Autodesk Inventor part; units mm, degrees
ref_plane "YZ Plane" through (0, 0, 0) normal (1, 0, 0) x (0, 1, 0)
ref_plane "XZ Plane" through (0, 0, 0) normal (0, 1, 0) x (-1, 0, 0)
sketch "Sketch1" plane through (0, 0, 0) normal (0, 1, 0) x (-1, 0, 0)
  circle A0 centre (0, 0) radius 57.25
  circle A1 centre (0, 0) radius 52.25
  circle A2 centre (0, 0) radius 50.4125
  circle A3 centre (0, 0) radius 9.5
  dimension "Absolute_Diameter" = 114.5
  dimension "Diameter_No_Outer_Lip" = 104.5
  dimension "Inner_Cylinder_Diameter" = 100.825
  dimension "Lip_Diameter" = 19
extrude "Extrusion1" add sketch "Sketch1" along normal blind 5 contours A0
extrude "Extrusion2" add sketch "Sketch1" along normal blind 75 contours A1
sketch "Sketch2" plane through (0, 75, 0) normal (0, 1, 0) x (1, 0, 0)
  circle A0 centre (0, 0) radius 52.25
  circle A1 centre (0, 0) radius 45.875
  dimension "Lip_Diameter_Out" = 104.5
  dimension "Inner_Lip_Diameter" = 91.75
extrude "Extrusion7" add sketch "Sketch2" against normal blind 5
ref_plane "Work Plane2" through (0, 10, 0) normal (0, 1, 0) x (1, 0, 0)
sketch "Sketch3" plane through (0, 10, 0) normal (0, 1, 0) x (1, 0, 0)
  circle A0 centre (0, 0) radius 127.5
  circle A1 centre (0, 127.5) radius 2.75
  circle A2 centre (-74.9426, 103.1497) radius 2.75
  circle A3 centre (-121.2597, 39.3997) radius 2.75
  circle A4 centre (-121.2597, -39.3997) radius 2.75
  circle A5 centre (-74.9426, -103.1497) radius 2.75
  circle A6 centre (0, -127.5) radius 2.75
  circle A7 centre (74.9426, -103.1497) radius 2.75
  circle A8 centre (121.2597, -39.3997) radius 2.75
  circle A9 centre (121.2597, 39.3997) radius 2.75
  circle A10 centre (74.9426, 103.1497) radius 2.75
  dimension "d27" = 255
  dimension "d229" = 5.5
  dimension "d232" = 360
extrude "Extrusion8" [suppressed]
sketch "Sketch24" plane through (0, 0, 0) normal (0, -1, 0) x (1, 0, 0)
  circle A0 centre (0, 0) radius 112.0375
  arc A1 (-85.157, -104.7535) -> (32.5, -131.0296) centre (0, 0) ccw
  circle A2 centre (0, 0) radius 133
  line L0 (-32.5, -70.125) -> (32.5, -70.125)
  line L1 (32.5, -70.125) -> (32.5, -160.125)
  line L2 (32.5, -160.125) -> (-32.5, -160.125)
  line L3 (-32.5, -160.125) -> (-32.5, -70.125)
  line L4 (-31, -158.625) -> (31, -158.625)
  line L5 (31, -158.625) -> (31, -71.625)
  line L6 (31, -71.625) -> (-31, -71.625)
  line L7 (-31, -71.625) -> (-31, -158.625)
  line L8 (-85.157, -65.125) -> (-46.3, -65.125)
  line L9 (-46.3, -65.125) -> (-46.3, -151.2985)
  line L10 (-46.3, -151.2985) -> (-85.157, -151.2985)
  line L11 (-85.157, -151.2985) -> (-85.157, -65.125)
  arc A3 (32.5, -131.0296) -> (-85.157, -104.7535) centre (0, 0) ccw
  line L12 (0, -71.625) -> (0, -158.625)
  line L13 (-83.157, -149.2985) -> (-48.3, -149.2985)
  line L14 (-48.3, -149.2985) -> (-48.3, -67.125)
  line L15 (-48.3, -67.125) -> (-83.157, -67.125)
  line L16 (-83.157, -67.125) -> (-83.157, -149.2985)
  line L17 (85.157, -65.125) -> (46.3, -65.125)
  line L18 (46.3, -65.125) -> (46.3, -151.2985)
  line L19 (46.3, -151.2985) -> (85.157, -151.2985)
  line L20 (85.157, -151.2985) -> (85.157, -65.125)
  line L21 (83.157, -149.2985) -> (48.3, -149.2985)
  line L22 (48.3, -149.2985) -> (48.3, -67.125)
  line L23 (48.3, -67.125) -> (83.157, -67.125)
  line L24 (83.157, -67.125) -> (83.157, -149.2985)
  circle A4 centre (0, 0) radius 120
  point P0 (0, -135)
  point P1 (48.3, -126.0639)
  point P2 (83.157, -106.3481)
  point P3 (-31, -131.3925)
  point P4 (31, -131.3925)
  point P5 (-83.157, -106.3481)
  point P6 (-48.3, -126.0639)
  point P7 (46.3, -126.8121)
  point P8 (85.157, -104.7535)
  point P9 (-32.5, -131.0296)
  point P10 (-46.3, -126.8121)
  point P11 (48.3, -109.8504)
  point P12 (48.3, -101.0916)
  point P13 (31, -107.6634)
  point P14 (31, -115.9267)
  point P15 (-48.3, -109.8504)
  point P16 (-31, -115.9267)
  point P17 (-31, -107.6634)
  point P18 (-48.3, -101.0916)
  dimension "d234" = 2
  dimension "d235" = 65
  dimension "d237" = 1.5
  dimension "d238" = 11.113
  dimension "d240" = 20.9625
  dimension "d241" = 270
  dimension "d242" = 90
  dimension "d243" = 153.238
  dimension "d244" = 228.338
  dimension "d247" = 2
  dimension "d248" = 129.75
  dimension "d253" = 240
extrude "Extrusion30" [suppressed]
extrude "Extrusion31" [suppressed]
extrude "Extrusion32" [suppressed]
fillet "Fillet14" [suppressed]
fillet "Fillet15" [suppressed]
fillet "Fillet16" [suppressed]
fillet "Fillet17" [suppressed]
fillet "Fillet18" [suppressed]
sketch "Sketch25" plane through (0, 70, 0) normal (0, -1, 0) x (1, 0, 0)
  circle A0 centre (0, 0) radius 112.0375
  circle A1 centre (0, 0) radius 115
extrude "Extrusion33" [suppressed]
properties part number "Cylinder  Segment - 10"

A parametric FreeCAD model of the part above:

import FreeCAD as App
import Part
import Sketcher
from FreeCAD import Vector

doc = App.newDocument("Part")
params = doc.addObject("Spreadsheet::Sheet", "Params")
for row, (alias, value) in enumerate([
    ("sketch1_diameter", "114.5 mm"),
    ("sketch1_diameter2", "104.5 mm"),
    ("pad1_length", "5 mm"),
    ("sketch2_diameter", "104.5 mm"),
    ("pad2_length", "75 mm"),
    ("sketch3_diameter", "104.5 mm"),
    ("sketch3_diameter2", "91.75 mm"),
    ("pad3_length", "5 mm"),
], start=1):
    params.set(f"A{row}", alias)
    params.set(f"B{row}", "=" + value)
    params.setAlias(f"B{row}", alias)

body = doc.addObject("PartDesign::Body", "Body")

# Sketch on XZ plane
sketch1 = body.newObject("Sketcher::SketchObject", "Sketch")
sketch1.AttachmentSupport = (doc.getObject("XZ_Plane"), [""])
sketch1.MapMode = "FlatFace"
sketch1.addGeometry([
    Part.Circle(Vector(0, 0, 0), Vector(0, 0, 1), 57),
    Part.Circle(Vector(0, 0, 0), Vector(0, 0, 1), 52),
], False)
sketch1.addConstraint([
    Sketcher.Constraint("Coincident", 0, 3, -1, 1),
    Sketcher.Constraint("Coincident", 1, 3, -1, 1),
    Sketcher.Constraint("Diameter", 0, 114.5),
    Sketcher.Constraint("Diameter", 1, 104.5),
])
sketch1.setExpression("Constraints[2]", "Params.sketch1_diameter")
sketch1.setExpression("Constraints[3]", "Params.sketch1_diameter2")
pad1 = body.newObject("PartDesign::Pad", "Pad")
pad1.Profile = sketch1
pad1.setExpression("Length", "Params.pad1_length")
pad1.Reversed = True

# Sketch on XZ plane
sketch2 = body.newObject("Sketcher::SketchObject", "Sketch001")
sketch2.AttachmentSupport = (doc.getObject("XZ_Plane"), [""])
sketch2.MapMode = "FlatFace"
sketch2.addGeometry([
    Part.Circle(Vector(0, 0, 0), Vector(0, 0, 1), 52),
    Part.Circle(Vector(0, 0, 0), Vector(0, 0, 1), 50),
], False)
sketch2.addConstraint([
    Sketcher.Constraint("Coincident", 0, 3, -1, 1),
    Sketcher.Constraint("Coincident", 1, 3, -1, 1),
    Sketcher.Constraint("Diameter", 0, 104.5),
    Sketcher.Constraint("Diameter", 1, 100.825),
])
sketch2.setExpression("Constraints[2]", "Params.sketch2_diameter")
pad2 = body.newObject("PartDesign::Pad", "Pad001")
pad2.Profile = sketch2
pad2.setExpression("Length", "Params.pad2_length")
pad2.Reversed = True

# Sketch on XZ plane
sketch3 = body.newObject("Sketcher::SketchObject", "Sketch002")
sketch3.AttachmentSupport = (doc.getObject("XZ_Plane"), [""])
sketch3.MapMode = "FlatFace"
sketch3.AttachmentOffset = App.Placement(Vector(0, 0, -75), App.Rotation())
sketch3.addGeometry([
    Part.Circle(Vector(0, 0, 0), Vector(0, 0, 1), 52),
    Part.Circle(Vector(0, 0, 0), Vector(0, 0, 1), 46),
], False)
sketch3.addConstraint([
    Sketcher.Constraint("Coincident", 0, 3, -1, 1),
    Sketcher.Constraint("Coincident", 1, 3, -1, 1),
    Sketcher.Constraint("Diameter", 0, 104.5),
    Sketcher.Constraint("Diameter", 1, 91.75),
])
sketch3.setExpression("Constraints[2]", "Params.sketch3_diameter")
sketch3.setExpression("Constraints[3]", "Params.sketch3_diameter2")
pad3 = body.newObject("PartDesign::Pad", "Pad002")
pad3.Profile = sketch3
pad3.setExpression("Length", "Params.pad3_length")

doc.recompute()
